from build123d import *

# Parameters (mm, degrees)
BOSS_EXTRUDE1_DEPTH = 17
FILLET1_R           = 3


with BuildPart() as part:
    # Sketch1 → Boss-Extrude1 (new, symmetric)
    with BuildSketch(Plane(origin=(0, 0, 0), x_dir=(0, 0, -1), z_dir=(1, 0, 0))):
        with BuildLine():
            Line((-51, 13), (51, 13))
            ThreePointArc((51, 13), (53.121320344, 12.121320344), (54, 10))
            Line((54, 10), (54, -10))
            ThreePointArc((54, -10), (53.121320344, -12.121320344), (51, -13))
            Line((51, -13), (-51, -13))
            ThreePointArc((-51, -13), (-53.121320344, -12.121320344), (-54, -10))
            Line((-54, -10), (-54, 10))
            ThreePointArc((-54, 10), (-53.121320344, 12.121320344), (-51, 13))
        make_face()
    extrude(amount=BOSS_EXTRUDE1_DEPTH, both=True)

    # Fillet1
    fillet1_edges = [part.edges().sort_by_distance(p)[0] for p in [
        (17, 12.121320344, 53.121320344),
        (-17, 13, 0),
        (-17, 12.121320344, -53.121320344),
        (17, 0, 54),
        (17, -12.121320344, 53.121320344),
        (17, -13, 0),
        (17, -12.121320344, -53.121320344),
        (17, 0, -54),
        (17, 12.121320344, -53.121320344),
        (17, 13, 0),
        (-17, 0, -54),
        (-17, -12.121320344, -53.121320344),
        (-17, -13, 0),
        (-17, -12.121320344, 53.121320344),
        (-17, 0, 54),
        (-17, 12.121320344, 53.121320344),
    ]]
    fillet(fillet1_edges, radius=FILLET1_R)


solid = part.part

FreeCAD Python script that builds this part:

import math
import FreeCAD as App
import Part
import Sketcher
from FreeCAD import Vector
Q = App.Units.Quantity


def edges_at(feature, points):
    """Names of the edges that pass closest to the given points."""
    edges = feature.Shape.Edges
    near = lambda p: min(range(len(edges)), key=lambda i: edges[i].distToShape(Part.Vertex(*p))[0])
    return sorted({f"Edge{near(p) + 1}" for p in points})

doc = App.newDocument("Part")
params = doc.addObject("Spreadsheet::Sheet", "Params")
for row, (alias, value) in enumerate([
    ("sketch1_radius", "3 mm"),
    ("sketch1_width", "20 mm"),
    ("sketch1_height", "102 mm"),
    ("pad1_length", "34 mm"),
    ("fillet_radius", "3 mm"),
], start=1):
    params.set(f"A{row}", alias)
    params.set(f"B{row}", "=" + value)
    params.setAlias(f"B{row}", alias)

body = doc.addObject("PartDesign::Body", "Body")

# Sketch on YZ plane
sketch1 = body.newObject("Sketcher::SketchObject", "Sketch")
sketch1.AttachmentSupport = (doc.getObject("YZ_Plane"), [""])
sketch1.MapMode = "FlatFace"
sketch1.addGeometry(Part.LineSegment(Vector(13, -51, 0), Vector(13, 51, 0)), False)
sketch1.addGeometry(Part.ArcOfCircle(Part.Circle(Vector(10, 51, 0), Vector(0, 0, 1), 3), math.radians(0), math.radians(90)), False)
sketch1.addGeometry(Part.LineSegment(Vector(10, 54, 0), Vector(-10, 54, 0)), False)
sketch1.addGeometry(Part.ArcOfCircle(Part.Circle(Vector(-10, 51, 0), Vector(0, 0, 1), 3), math.radians(90), math.radians(180)), False)
sketch1.addGeometry(Part.LineSegment(Vector(-13, 51, 0), Vector(-13, -51, 0)), False)
sketch1.addGeometry(Part.ArcOfCircle(Part.Circle(Vector(-10, -51, 0), Vector(0, 0, 1), 3), math.radians(180), math.radians(270)), False)
sketch1.addGeometry(Part.LineSegment(Vector(-10, -54, 0), Vector(10, -54, 0)), False)
sketch1.addGeometry(Part.ArcOfCircle(Part.Circle(Vector(10, -51, 0), Vector(0, 0, 1), 3), math.radians(-90), math.radians(0)), False)
sketch1.addConstraint(Sketcher.Constraint("Tangent", 0, 2, 1, 1))
sketch1.addConstraint(Sketcher.Constraint("Tangent", 1, 2, 2, 1))
sketch1.addConstraint(Sketcher.Constraint("Tangent", 2, 2, 3, 1))
sketch1.addConstraint(Sketcher.Constraint("Tangent", 3, 2, 4, 1))
sketch1.addConstraint(Sketcher.Constraint("Tangent", 4, 2, 5, 1))
sketch1.addConstraint(Sketcher.Constraint("Tangent", 5, 2, 6, 1))
sketch1.addConstraint(Sketcher.Constraint("Tangent", 6, 2, 7, 1))
sketch1.addConstraint(Sketcher.Constraint("Tangent", 7, 2, 0, 1))
sketch1.addConstraint(Sketcher.Constraint("Vertical", 0))
sketch1.addConstraint(Sketcher.Constraint("Horizontal", 2))
sketch1.addConstraint(Sketcher.Constraint("Vertical", 4))
sketch1.addConstraint(Sketcher.Constraint("Horizontal", 6))
sketch1.addConstraint(Sketcher.Constraint("Equal", 1, 3))
sketch1.addConstraint(Sketcher.Constraint("Equal", 3, 5))
sketch1.addConstraint(Sketcher.Constraint("Equal", 5, 7))
sketch1.addConstraint(Sketcher.Constraint("Symmetric", 1, 3, 5, 3, -1, 1))
sketch1.addConstraint(Sketcher.Constraint("Radius", 1, Q("3 mm")))
sketch1.addConstraint(Sketcher.Constraint("DistanceX", 2, 2, 2, 1, Q("20 mm")))
sketch1.addConstraint(Sketcher.Constraint("DistanceY", 0, 1, 0, 2, Q("102 mm")))
sketch1.setExpression("Constraints[16]", "Params.sketch1_radius")
sketch1.setExpression("Constraints[17]", "Params.sketch1_width")
sketch1.setExpression("Constraints[18]", "Params.sketch1_height")
pad1 = body.newObject("PartDesign::Pad", "Pad")
pad1.Profile = sketch1
pad1.setExpression("Length", "Params.pad1_length")
pad1.Midplane = True
doc.recompute()

fillet = body.newObject("PartDesign::Fillet", "Fillet")
fillet.Base = (pad1, edges_at(pad1, [
    (17, 12.121, 53.121),
    (-17, 13, 0),
    (-17, 12.121, -53.121),
    (17, 0, 54),
    (17, -12.121, 53.121),
    (17, -13, 0),
    (17, -12.121, -53.121),
    (17, 0, -54),
    (17, 12.121, -53.121),
    (17, 13, 0),
    (-17, 0, -54),
    (-17, -12.121, -53.121),
    (-17, -13, 0),
    (-17, -12.121, 53.121),
    (-17, 0, 54),
    (-17, 12.121, 53.121),
]))
fillet.setExpression("Radius", "Params.fillet_radius")

doc.recompute()
